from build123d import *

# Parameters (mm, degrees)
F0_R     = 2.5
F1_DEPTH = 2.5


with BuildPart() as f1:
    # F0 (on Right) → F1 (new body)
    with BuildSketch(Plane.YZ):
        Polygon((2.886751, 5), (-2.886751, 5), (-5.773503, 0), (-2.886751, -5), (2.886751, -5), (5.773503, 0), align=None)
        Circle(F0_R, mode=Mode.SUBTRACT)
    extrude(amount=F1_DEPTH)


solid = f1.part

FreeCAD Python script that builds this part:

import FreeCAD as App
import Part
import Sketcher
from FreeCAD import Vector
Q = App.Units.Quantity


def add_polygon(sketch, points):
    """Adds a closed chain of lines whose ends are joined by coincident constraints."""
    first, n = sketch.GeometryCount, len(points)
    for a, b in zip(points, points[1:] + points[:1]):
        sketch.addGeometry(Part.LineSegment(App.Vector(*a, 0), App.Vector(*b, 0)), False)
    for i in range(n):
        sketch.addConstraint(Sketcher.Constraint("Coincident", first + i, 2, first + (i + 1) % n, 1))

doc = App.newDocument("Part")
body = doc.addObject("PartDesign::Body", "Body")

# Sketch on YZ plane
sketch1 = body.newObject("Sketcher::SketchObject", "Sketch")
sketch1.AttachmentSupport = (doc.getObject("YZ_Plane"), [""])
sketch1.MapMode = "FlatFace"
add_polygon(sketch1, [(2.9, 5), (-2.9, 5), (-5.8, 0), (-2.9, -5), (2.9, -5), (5.8, 0)])  # lines 0-5
sketch1.addGeometry(Part.Circle(Vector(0, 0, 0), Vector(0, 0, 1), 2.5), False)  # 6
sketch1.addConstraint(Sketcher.Constraint("Horizontal", 0))
sketch1.addConstraint(Sketcher.Constraint("Horizontal", 3))
sketch1.addConstraint(Sketcher.Constraint("Coincident", 6, 3, -1, 1))
sketch1.addConstraint(Sketcher.Constraint("Symmetric", 0, 2, 3, 2, -1, 1))
sketch1.addConstraint(Sketcher.Constraint("Symmetric", 1, 2, 4, 2, -1, 1))
sketch1.addConstraint(Sketcher.Constraint("PointOnObject", 1, 2, -1))
sketch1.addConstraint(Sketcher.Constraint("Parallel", 2, 5))
sketch1.addConstraint(Sketcher.Constraint("Vertical", 0, 2, 2, 2))
sketch1.addConstraint(Sketcher.Constraint("Diameter", 6, Q("5 mm")))
sketch1.addConstraint(Sketcher.Constraint("Angle", 1, Q("-120.000006 deg")))
sketch1.addConstraint(Sketcher.Constraint("DistanceY", -1, 1, 0, 2, Q("5 mm")))
sketch1.addConstraint(Sketcher.Constraint("DistanceX", 0, 2, 0, 1, Q("5.773502 mm")))
pad1 = body.newObject("PartDesign::Pad", "Pad")
pad1.Profile = sketch1
pad1.Length = 2.5

doc.recompute()
